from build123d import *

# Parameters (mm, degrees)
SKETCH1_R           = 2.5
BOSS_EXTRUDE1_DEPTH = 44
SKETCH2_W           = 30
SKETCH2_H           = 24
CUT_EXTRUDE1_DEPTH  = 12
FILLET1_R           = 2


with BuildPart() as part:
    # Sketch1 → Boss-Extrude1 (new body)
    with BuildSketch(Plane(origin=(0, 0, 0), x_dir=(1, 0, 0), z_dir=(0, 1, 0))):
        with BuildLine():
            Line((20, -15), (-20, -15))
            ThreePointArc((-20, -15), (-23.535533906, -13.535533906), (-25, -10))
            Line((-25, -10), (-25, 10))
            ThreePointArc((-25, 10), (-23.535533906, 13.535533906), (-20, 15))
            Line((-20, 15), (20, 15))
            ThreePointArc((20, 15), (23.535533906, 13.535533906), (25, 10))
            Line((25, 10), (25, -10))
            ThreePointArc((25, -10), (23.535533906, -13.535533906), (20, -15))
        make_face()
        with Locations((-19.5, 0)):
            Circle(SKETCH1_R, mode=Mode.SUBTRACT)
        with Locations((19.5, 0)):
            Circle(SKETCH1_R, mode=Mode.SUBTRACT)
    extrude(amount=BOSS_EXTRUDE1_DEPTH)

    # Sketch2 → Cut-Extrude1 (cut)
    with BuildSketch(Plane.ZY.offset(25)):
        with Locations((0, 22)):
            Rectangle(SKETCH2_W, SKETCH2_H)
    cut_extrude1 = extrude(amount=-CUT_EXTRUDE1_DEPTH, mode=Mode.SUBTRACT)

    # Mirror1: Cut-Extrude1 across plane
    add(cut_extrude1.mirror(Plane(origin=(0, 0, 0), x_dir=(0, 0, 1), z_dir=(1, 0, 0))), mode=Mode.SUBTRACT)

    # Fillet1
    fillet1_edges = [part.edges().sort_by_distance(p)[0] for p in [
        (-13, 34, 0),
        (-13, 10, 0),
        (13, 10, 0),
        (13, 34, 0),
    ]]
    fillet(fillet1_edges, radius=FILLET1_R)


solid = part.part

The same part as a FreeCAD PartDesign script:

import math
import FreeCAD as App
import Part
import Sketcher
from FreeCAD import Vector
Q = App.Units.Quantity


def edges_at(feature, points):
    """Names of the edges that pass closest to the given points."""
    edges = feature.Shape.Edges
    near = lambda p: min(range(len(edges)), key=lambda i: edges[i].distToShape(Part.Vertex(*p))[0])
    return sorted({f"Edge{near(p) + 1}" for p in points})


def add_polygon(sketch, points):
    """Adds a closed chain of lines whose ends are joined by coincident constraints."""
    first, n = sketch.GeometryCount, len(points)
    for a, b in zip(points, points[1:] + points[:1]):
        sketch.addGeometry(Part.LineSegment(App.Vector(*a, 0), App.Vector(*b, 0)), False)
    for i in range(n):
        sketch.addConstraint(Sketcher.Constraint("Coincident", first + i, 2, first + (i + 1) % n, 1))

doc = App.newDocument("Part")
body = doc.addObject("PartDesign::Body", "Body")

# Sketch on XZ plane
sketch1 = doc.addObject("Sketcher::SketchObject", "Sketch")
body.addObject(sketch1)
sketch1.AttachmentSupport = (doc.XZ_Plane, [""])
sketch1.MapMode = "FlatFace"
sketch1.addGeometry([
    Part.LineSegment(Vector(-20, 15, 0), Vector(20, 15, 0)),  # 0
    Part.ArcOfCircle(Part.Circle(Vector(20, 10, 0), Vector(0, 0, 1), 5), math.radians(0), math.radians(90)),  # 1
    Part.LineSegment(Vector(25, 10, 0), Vector(25, -10, 0)),  # 2
    Part.ArcOfCircle(Part.Circle(Vector(20, -10, 0), Vector(0, 0, 1), 5), math.radians(-90), math.radians(0)),  # 3
    Part.LineSegment(Vector(20, -15, 0), Vector(-20, -15, 0)),  # 4
    Part.ArcOfCircle(Part.Circle(Vector(-20, -10, 0), Vector(0, 0, 1), 5), math.radians(180), math.radians(270)),  # 5
    Part.LineSegment(Vector(-25, -10, 0), Vector(-25, 10, 0)),  # 6
    Part.ArcOfCircle(Part.Circle(Vector(-20, 10, 0), Vector(0, 0, 1), 5), math.radians(90), math.radians(180)),  # 7
    Part.Circle(Vector(19.5, 0, 0), Vector(0, 0, 1), 2.5),  # 8
    Part.Circle(Vector(-19.5, 0, 0), Vector(0, 0, 1), 2.5),  # 9
], False)
sketch1.addConstraint([
    Sketcher.Constraint("Tangent", 0, 2, 1, 2),
    Sketcher.Constraint("Tangent", 1, 1, 2, 1),
    Sketcher.Constraint("Tangent", 2, 2, 3, 2),
    Sketcher.Constraint("Tangent", 3, 1, 4, 1),
    Sketcher.Constraint("Tangent", 4, 2, 5, 2),
    Sketcher.Constraint("Tangent", 5, 1, 6, 1),
    Sketcher.Constraint("Tangent", 6, 2, 7, 2),
    Sketcher.Constraint("Tangent", 7, 1, 0, 1),
    Sketcher.Constraint("Horizontal", 0),
    Sketcher.Constraint("Vertical", 2),
    Sketcher.Constraint("Horizontal", 4),
    Sketcher.Constraint("Vertical", 6),
    Sketcher.Constraint("Equal", 1, 3),
    Sketcher.Constraint("Equal", 3, 5),
    Sketcher.Constraint("Equal", 5, 7),
    Sketcher.Constraint("Equal", 8, 9),
    Sketcher.Constraint("Symmetric", 1, 3, 5, 3, -1, 1),
    Sketcher.Constraint("Symmetric", 8, 3, 9, 3, -1, 1),
    Sketcher.Constraint("PointOnObject", 8, 3, -1),
    Sketcher.Constraint("Diameter", 8, Q("5 mm")),
    Sketcher.Constraint("Radius", 1, Q("5 mm")),
    Sketcher.Constraint("DistanceX", 0, 1, 0, 2, Q("40 mm")),
    Sketcher.Constraint("DistanceY", 2, 2, 2, 1, Q("20 mm")),
    Sketcher.Constraint("DistanceX", 9, 3, 8, 3, Q("39 mm")),
])
pad1 = doc.addObject("PartDesign::Pad", "Pad")
body.addObject(pad1)
pad1.Profile = sketch1
pad1.Length = 44
pad1.Reversed = True

# Sketch on YZ plane
sketch2 = doc.addObject("Sketcher::SketchObject", "Sketch001")
body.addObject(sketch2)
sketch2.AttachmentSupport = (doc.YZ_Plane, [""])
sketch2.MapMode = "FlatFace"
sketch2.AttachmentOffset = App.Placement(Vector(0, 0, -25), App.Rotation())
add_polygon(sketch2, [(34, -15), (10, -15), (10, 15), (34, 15)])  # lines 0-3
sketch2.addConstraint([
    Sketcher.Constraint("Horizontal", 0),
    Sketcher.Constraint("Vertical", 1),
    Sketcher.Constraint("Horizontal", 2),
    Sketcher.Constraint("Vertical", 3),
    Sketcher.Constraint("DistanceX", 0, 2, 0, 1, Q("24 mm")),
    Sketcher.Constraint("DistanceY", 1, 1, 1, 2, Q("30 mm")),
    Sketcher.Constraint("DistanceX", -1, 1, 0, 2, Q("10 mm")),
    Sketcher.Constraint("DistanceY", 0, 2, -1, 1, Q("15 mm")),
])
pocket1 = doc.addObject("PartDesign::Pocket", "Pocket")
body.addObject(pocket1)
pocket1.Profile = sketch2
pocket1.Length = 12
pocket1.Reversed = True
doc.recompute()

mirrored = doc.addObject("PartDesign::Mirrored", "Mirrored")
body.addObject(mirrored)
mirrored.Originals = [pocket1]
mirrored.MirrorPlane = (doc.YZ_Plane, [""])
body.Tip = mirrored
doc.recompute()

fillet = doc.addObject("PartDesign::Fillet", "Fillet")
body.addObject(fillet)
fillet.Base = (mirrored, edges_at(mirrored, [
    (-13, 34, 0),
    (-13, 10, 0),
    (13, 10, 0),
    (13, 34, 0),
]))
fillet.Radius = 2

doc.recompute()
